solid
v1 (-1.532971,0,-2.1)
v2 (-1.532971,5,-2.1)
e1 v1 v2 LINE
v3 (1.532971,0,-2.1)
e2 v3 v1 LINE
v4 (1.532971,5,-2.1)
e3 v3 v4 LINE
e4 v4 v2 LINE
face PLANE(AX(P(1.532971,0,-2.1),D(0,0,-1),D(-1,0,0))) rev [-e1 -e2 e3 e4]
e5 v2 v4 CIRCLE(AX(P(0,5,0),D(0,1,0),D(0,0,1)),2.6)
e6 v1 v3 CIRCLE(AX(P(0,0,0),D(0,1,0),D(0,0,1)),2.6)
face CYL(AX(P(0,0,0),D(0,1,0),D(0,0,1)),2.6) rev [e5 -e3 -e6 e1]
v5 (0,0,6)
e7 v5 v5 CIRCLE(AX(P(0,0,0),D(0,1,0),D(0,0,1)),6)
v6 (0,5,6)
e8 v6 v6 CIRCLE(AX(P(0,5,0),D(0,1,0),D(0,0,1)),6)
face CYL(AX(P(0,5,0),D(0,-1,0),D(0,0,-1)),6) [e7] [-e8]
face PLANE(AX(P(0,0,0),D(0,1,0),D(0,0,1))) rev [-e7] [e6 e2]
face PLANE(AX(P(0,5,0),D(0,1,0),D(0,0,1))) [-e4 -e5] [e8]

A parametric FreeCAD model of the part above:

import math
import FreeCAD as App
import Part
import Sketcher

V = App.Vector
Q = App.Units.Quantity

doc = App.newDocument("Part")
body = doc.addObject("PartDesign::Body", "Body")

sketch1 = body.newObject("Sketcher::SketchObject", "Sketch")
sketch1.AttachmentSupport = (doc.getObject("XZ_Plane"), [""])
sketch1.MapMode = "FlatFace"
sketch1.addGeometry([
    Part.Circle(V(0, 0, 0), V(0, 0, 1), 6),
    Part.ArcOfCircle(Part.Circle(V(0, 0, 0), V(0, 0, 1), 2.6), math.radians(-54), math.radians(234)),
    Part.LineSegment(V(-1.5, -2.1, 0), V(1.5, -2.1, 0)),
], False)
sketch1.addConstraint([
    Sketcher.Constraint("Coincident", 1, 1, 2, 2),
    Sketcher.Constraint("Coincident", 2, 1, 1, 2),
    Sketcher.Constraint("Horizontal", 2),
    Sketcher.Constraint("Coincident", 0, 3, -1, 1),
    Sketcher.Constraint("Coincident", 1, 3, -1, 1),
    Sketcher.Constraint("Diameter", 0, Q("12 mm")),
    Sketcher.Constraint("Radius", 1, Q("2.65 mm")),
    Sketcher.Constraint("DistanceY", 1, 1, -1, 1, Q("2.15 mm")),
])
pad1 = body.newObject("PartDesign::Pad", "Pad")
pad1.Profile = sketch1
pad1.Length = 5
pad1.Reversed = True

sketch2 = body.newObject("Sketcher::SketchObject", "Sketch001")
sketch2.AttachmentSupport = (doc.getObject("XZ_Plane"), [""])
sketch2.MapMode = "FlatFace"
sketch2.addGeometry([
    Part.LineSegment(V(1.5, -2.1, 0), V(-1.5, -2.1, 0)),
    Part.ArcOfCircle(Part.Circle(V(0, 0, 0), V(0, 0, 1), 2.6), math.radians(-54), math.radians(234)),
    Part.LineSegment(V(-1.5, -2.1, 0), V(1.5, -2.1, 0)),
    Part.ArcOfCircle(Part.Circle(V(0, 0, 0), V(0, 0, 1), 2.6), math.radians(-54), math.radians(234)),
], False)
sketch2.addConstraint([
    Sketcher.Constraint("Coincident", 0, 1, 1, 1),
    Sketcher.Constraint("Coincident", 1, 2, 0, 2),
    Sketcher.Constraint("Coincident", 2, 1, 3, 2),
    Sketcher.Constraint("Coincident", 3, 1, 2, 2),
    Sketcher.Constraint("Horizontal", 0),
    Sketcher.Constraint("Horizontal", 2),
    Sketcher.Constraint("Coincident", 1, 3, -1, 1),
    Sketcher.Constraint("Coincident", 3, 3, -1, 1),
    Sketcher.Constraint("Radius", 1, Q("2.65 mm")),
    Sketcher.Constraint("Radius", 3, Q("2.58 mm")),
    Sketcher.Constraint("DistanceY", 0, 1, -1, 1, Q("2.15 mm")),
    Sketcher.Constraint("DistanceY", 2, 1, -1, 1, Q("2.08 mm")),
])
pad2 = body.newObject("PartDesign::Pad", "Pad001")
pad2.Profile = sketch2
pad2.Length = 5
pad2.Reversed = True

sketch3 = body.newObject("Sketcher::SketchObject", "Sketch002")
sketch3.AttachmentSupport = (doc.getObject("XZ_Plane"), [""])
sketch3.MapMode = "FlatFace"
sketch3.AttachmentOffset = App.Placement(V(0, 0, -5), App.Rotation())
sketch3.addGeometry([
    Part.LineSegment(V(1.5, -2.1, 0), V(-1.5, -2.1, 0)),
    Part.ArcOfCircle(Part.Circle(V(0, 0, 0), V(0, 0, 1), 2.6), math.radians(-54), math.radians(234)),
], False)
sketch3.addConstraint([
    Sketcher.Constraint("Coincident", 0, 1, 1, 1),
    Sketcher.Constraint("Coincident", 1, 2, 0, 2),
    Sketcher.Constraint("Horizontal", 0),
    Sketcher.Constraint("Coincident", 1, 3, -1, 1),
    Sketcher.Constraint("Radius", 1, Q("2.6 mm")),
    Sketcher.Constraint("DistanceY", 0, 1, -1, 1, Q("2.1 mm")),
])
pocket1 = body.newObject("PartDesign::Pocket", "Pocket")
pocket1.Profile = sketch3
pocket1.Length = 5
pocket1.Reversed = True

doc.recompute()
